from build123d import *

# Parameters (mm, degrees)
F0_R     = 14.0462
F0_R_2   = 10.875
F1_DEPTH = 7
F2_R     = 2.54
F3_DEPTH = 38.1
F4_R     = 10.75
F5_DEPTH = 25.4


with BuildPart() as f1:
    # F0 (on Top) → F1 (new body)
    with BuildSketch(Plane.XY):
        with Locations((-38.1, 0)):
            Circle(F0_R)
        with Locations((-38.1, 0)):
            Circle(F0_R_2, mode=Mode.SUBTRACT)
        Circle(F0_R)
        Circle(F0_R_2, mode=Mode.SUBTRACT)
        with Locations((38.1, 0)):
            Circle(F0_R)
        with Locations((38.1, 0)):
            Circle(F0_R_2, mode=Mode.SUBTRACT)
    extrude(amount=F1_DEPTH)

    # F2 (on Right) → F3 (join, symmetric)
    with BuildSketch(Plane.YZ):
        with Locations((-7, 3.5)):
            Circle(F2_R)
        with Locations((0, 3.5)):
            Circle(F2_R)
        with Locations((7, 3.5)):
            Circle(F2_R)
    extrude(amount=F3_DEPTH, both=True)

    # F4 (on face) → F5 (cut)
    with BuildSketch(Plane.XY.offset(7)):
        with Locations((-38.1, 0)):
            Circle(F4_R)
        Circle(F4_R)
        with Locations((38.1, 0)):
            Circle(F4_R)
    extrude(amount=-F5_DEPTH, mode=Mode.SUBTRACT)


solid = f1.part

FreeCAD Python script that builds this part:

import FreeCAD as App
import Part
import Sketcher
Q = App.Units.Quantity

doc = App.newDocument("Part")
body = doc.addObject("PartDesign::Body", "Body")
body.AllowCompound = True

# Sketch on XY plane
sketch1 = body.newObject("Sketcher::SketchObject", "Sketch")
sketch1.AttachmentSupport = (doc.getObject("XY_Plane"), [""])
sketch1.MapMode = "FlatFace"
sketch1.addGeometry([
    Part.Circle(App.Vector(-38, 0, 0), App.Vector(0, 0, 1), 14),  # 0
    Part.Circle(App.Vector(-38, 0, 0), App.Vector(0, 0, 1), 11),  # 1
    Part.Circle(App.Vector(0, 0, 0), App.Vector(0, 0, 1), 14),  # 2
    Part.Circle(App.Vector(0, 0, 0), App.Vector(0, 0, 1), 11),  # 3
    Part.Circle(App.Vector(38, 0, 0), App.Vector(0, 0, 1), 14),  # 4
    Part.Circle(App.Vector(38, 0, 0), App.Vector(0, 0, 1), 11),  # 5
], False)
sketch1.addConstraint([
    Sketcher.Constraint("Coincident", 2, 3, -1, 1),
    Sketcher.Constraint("Coincident", 3, 3, -1, 1),
    Sketcher.Constraint("Coincident", 1, 3, 0, 3),
    Sketcher.Constraint("Coincident", 5, 3, 4, 3),
    Sketcher.Constraint("Equal", 0, 2),
    Sketcher.Constraint("Equal", 1, 3),
    Sketcher.Constraint("Equal", 2, 4),
    Sketcher.Constraint("Equal", 3, 5),
    Sketcher.Constraint("Symmetric", 0, 3, 4, 3, -1, 1),
    Sketcher.Constraint("PointOnObject", 0, 3, -1),
    Sketcher.Constraint("Diameter", 0, Q("1.106 in")),
    Sketcher.Constraint("DistanceX", 0, 3, 4, 3, Q("3 in")),
    Sketcher.Constraint("Diameter", 1, 21.75),
])
pad1 = body.newObject("PartDesign::Pad", "Pad")
pad1.Profile = sketch1
pad1.Length = 7

# Sketch on YZ plane
sketch2 = body.newObject("Sketcher::SketchObject", "Sketch001")
sketch2.AttachmentSupport = (doc.getObject("YZ_Plane"), [""])
sketch2.MapMode = "FlatFace"
sketch2.addGeometry([
    Part.Circle(App.Vector(-7, 3.5, 0), App.Vector(0, 0, 1), 2.5),
    Part.Circle(App.Vector(0, 3.5, 0), App.Vector(0, 0, 1), 2.5),
    Part.Circle(App.Vector(7, 3.5, 0), App.Vector(0, 0, 1), 2.5),
], False)
sketch2.addConstraint([
    Sketcher.Constraint("Equal", 0, 1),
    Sketcher.Constraint("Equal", 1, 2),
    Sketcher.Constraint("Symmetric", 0, 3, 2, 3, -2),
    Sketcher.Constraint("PointOnObject", 1, 3, -2),
    Sketcher.Constraint("Horizontal", 0, 3, 1, 3),
    Sketcher.Constraint("Diameter", 0, Q("0.2 in")),
    Sketcher.Constraint("DistanceX", 0, 3, -1, 1, 7.0),
    Sketcher.Constraint("DistanceY", -1, 1, 0, 3, 3.5),
])
pad2 = body.newObject("PartDesign::Pad", "Pad001")
pad2.Profile = sketch2
pad2.Length = Q("3 in")
pad2.Midplane = True

# Sketch on XY plane
sketch3 = body.newObject("Sketcher::SketchObject", "Sketch002")
sketch3.AttachmentSupport = (doc.getObject("XY_Plane"), [""])
sketch3.MapMode = "FlatFace"
sketch3.AttachmentOffset = App.Placement(App.Vector(0, 0, 7), App.Rotation())
sketch3.addGeometry([
    Part.Circle(App.Vector(-38, 0, 0), App.Vector(0, 0, 1), 11),
    Part.Circle(App.Vector(0, 0, 0), App.Vector(0, 0, 1), 11),
    Part.Circle(App.Vector(38, 0, 0), App.Vector(0, 0, 1), 11),
], False)
sketch3.addConstraint([
    Sketcher.Constraint("Coincident", 1, 3, -1, 1),
    Sketcher.Constraint("Equal", 0, 1),
    Sketcher.Constraint("Equal", 1, 2),
    Sketcher.Constraint("Symmetric", 0, 3, 2, 3, -1, 1),
    Sketcher.Constraint("PointOnObject", 0, 3, -1),
    Sketcher.Constraint("DistanceX", 0, 3, 2, 3, Q("3 in")),
    Sketcher.Constraint("Diameter", 0, 21.5),
])
pocket1 = body.newObject("PartDesign::Pocket", "Pocket")
pocket1.Profile = sketch3
pocket1.Length = Q("1 in")

doc.recompute()
